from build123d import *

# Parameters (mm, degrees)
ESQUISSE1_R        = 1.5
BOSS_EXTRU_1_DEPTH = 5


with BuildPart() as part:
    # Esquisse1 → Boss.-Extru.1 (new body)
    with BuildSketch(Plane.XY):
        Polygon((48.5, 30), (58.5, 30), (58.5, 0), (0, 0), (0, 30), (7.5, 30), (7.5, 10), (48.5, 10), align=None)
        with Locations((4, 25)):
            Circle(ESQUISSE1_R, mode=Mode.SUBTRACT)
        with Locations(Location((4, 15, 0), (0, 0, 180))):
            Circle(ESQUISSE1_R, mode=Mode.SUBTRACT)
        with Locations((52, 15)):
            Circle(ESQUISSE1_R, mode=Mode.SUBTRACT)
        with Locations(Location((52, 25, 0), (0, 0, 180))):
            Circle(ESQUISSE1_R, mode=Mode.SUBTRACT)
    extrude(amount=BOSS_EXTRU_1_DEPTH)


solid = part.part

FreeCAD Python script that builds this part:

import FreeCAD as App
import Part
import Sketcher

V = App.Vector
Q = App.Units.Quantity


def add_polygon(sketch, points):
    """Adds a closed chain of lines whose ends are joined by coincident constraints."""
    first, n = sketch.GeometryCount, len(points)
    for a, b in zip(points, points[1:] + points[:1]):
        sketch.addGeometry(Part.LineSegment(App.Vector(*a, 0), App.Vector(*b, 0)), False)
    for i in range(n):
        sketch.addConstraint(Sketcher.Constraint("Coincident", first + i, 2, first + (i + 1) % n, 1))

doc = App.newDocument("Part")
body = doc.addObject("PartDesign::Body", "Body")

# Sketch on XY plane
sketch1 = body.newObject("Sketcher::SketchObject", "Sketch")
sketch1.AttachmentSupport = (doc.getObject("XY_Plane"), [""])
sketch1.MapMode = "FlatFace"
add_polygon(sketch1, [(58.5, 30), (48.5, 30), (48.5, 10), (7.5, 10), (7.5, 30), (0, 30), (0, 0), (58.5, 0)])  # lines 0-7
sketch1.addGeometry(Part.Circle(V(52, 15, 0), V(0, 0, 1), 1.5), False)  # 8
sketch1.addGeometry(Part.Circle(V(4, 15, 0), V(0, 0, 1), 1.5), False)  # 9
sketch1.addGeometry(Part.Circle(V(52, 25, 0), V(0, 0, 1), 1.5), False)  # 10
sketch1.addGeometry(Part.Circle(V(4, 25, 0), V(0, 0, 1), 1.5), False)  # 11
sketch1.addConstraint([
    Sketcher.Constraint("Horizontal", 0),
    Sketcher.Constraint("Vertical", 1),
    Sketcher.Constraint("Horizontal", 2),
    Sketcher.Constraint("Vertical", 3),
    Sketcher.Constraint("Horizontal", 4),
    Sketcher.Constraint("Vertical", 5),
    Sketcher.Constraint("Horizontal", 6),
    Sketcher.Constraint("Vertical", 7),
    Sketcher.Constraint("Coincident", 5, 2, -1, 1),
    Sketcher.Constraint("Equal", 8, 9),
    Sketcher.Constraint("Equal", 9, 10),
    Sketcher.Constraint("Equal", 10, 11),
    Sketcher.Constraint("Horizontal", 8, 3, 9, 3),
    Sketcher.Constraint("Horizontal", 10, 3, 11, 3),
    Sketcher.Constraint("Horizontal", 0, 2, 3, 2),
    Sketcher.Constraint("Vertical", 8, 3, 10, 3),
    Sketcher.Constraint("Vertical", 9, 3, 11, 3),
    Sketcher.Constraint("Diameter", 8, Q("3 mm")),
    Sketcher.Constraint("DistanceX", 0, 2, 0, 1, Q("10 mm")),
    Sketcher.Constraint("DistanceX", 2, 2, 2, 1, Q("41 mm")),
    Sketcher.Constraint("DistanceY", 1, 2, 1, 1, Q("20 mm")),
    Sketcher.Constraint("DistanceY", 5, 2, 5, 1, Q("30 mm")),
    Sketcher.Constraint("DistanceX", 4, 2, 4, 1, Q("7.5 mm")),
    Sketcher.Constraint("DistanceX", -1, 1, 8, 3, Q("52 mm")),
    Sketcher.Constraint("DistanceY", -1, 1, 8, 3, Q("15 mm")),
    Sketcher.Constraint("DistanceX", -1, 1, 9, 3, Q("4 mm")),
    Sketcher.Constraint("DistanceY", -1, 1, 10, 3, Q("25 mm")),
])
pad1 = body.newObject("PartDesign::Pad", "Pad")
pad1.Profile = sketch1
pad1.Length = 5

doc.recompute()
